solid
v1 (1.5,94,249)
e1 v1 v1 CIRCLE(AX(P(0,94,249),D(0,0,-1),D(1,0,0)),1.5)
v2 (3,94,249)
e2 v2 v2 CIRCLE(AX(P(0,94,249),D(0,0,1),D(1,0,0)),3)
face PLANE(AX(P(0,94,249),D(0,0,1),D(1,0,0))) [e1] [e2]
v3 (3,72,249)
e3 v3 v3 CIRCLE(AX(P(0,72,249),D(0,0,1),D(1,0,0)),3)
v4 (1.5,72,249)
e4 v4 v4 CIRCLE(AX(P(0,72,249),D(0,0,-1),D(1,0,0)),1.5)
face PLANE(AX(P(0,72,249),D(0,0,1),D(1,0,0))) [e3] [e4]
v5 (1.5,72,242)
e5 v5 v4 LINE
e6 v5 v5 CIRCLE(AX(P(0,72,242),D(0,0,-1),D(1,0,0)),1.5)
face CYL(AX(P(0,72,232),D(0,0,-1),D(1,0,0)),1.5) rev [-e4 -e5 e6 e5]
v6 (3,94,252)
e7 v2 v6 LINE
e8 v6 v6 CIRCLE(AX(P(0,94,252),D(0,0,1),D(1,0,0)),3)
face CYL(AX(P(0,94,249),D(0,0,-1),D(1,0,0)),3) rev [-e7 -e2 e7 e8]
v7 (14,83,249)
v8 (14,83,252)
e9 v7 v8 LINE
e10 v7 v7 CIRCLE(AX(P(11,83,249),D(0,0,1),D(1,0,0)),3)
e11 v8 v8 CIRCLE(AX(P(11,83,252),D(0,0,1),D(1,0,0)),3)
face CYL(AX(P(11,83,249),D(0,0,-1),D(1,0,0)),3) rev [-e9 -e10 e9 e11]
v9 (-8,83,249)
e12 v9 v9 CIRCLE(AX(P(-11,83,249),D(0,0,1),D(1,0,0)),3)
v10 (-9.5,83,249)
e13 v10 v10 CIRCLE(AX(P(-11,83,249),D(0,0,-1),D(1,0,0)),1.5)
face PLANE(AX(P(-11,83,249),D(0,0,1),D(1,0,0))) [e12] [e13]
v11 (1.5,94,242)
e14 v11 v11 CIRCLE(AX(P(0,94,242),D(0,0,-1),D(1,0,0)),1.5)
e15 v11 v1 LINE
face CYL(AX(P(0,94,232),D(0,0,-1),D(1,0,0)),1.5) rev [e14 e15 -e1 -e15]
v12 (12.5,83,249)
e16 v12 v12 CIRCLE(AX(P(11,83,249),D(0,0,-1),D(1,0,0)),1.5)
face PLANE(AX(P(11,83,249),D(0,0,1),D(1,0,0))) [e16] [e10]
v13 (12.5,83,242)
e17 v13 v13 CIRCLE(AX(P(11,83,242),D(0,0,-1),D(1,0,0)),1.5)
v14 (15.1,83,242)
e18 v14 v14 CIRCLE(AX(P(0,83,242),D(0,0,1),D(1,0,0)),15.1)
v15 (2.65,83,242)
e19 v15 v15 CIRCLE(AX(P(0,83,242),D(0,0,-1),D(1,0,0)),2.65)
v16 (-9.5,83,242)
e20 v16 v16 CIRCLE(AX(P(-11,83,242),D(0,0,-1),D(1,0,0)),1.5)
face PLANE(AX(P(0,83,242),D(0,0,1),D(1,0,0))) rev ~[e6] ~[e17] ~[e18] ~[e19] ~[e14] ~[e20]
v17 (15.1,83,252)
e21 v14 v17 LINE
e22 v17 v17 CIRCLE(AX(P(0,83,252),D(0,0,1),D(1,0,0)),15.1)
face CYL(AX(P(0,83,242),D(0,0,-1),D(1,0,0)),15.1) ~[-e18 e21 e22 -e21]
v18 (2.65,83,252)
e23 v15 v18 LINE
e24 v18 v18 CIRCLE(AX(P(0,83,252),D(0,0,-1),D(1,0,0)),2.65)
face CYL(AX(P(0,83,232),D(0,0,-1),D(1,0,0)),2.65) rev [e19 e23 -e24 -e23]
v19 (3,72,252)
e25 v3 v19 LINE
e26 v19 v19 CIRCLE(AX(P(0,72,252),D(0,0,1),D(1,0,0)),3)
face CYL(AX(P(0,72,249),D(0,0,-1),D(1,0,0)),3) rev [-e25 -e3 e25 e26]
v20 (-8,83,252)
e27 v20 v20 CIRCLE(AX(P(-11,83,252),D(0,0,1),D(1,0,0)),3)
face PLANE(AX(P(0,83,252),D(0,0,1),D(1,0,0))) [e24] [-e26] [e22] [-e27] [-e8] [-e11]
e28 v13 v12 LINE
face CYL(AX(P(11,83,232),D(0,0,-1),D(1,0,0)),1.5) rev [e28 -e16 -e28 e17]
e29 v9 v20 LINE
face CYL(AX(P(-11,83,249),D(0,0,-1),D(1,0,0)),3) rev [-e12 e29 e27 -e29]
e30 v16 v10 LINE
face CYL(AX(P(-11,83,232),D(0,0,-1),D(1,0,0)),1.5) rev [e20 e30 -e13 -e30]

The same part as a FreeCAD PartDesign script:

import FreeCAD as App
import Part
import Sketcher
Q = App.Units.Quantity

doc = App.newDocument("Part")
body = doc.addObject("PartDesign::Body", "Body")

# Sketch on XY plane
sketch1 = body.newObject("Sketcher::SketchObject", "Sketch")
sketch1.AttachmentSupport = (doc.getObject("XY_Plane"), [""])
sketch1.MapMode = "FlatFace"
sketch1.AttachmentOffset = App.Placement(App.Vector(0, 0, 232), App.Rotation())
sketch1.addGeometry(Part.Circle(App.Vector(0, 83, 0), App.Vector(0, 0, 1), 2.6), False)
sketch1.addConstraint(Sketcher.Constraint("PointOnObject", 0, 3, -2))
sketch1.addConstraint(Sketcher.Constraint("Diameter", 0, Q("5.3 mm")))
sketch1.addConstraint(Sketcher.Constraint("DistanceY", -1, 1, 0, 3, Q("83 mm")))
pad1 = body.newObject("PartDesign::Pad", "Pad")
pad1.Profile = sketch1
pad1.Length = 30
body2 = doc.addObject("PartDesign::Body", "Body001")

# Sketch on XY plane
sketch2 = body2.newObject("Sketcher::SketchObject", "Sketch001")
sketch2.AttachmentSupport = (doc.getObject("XY_Plane001"), [""])
sketch2.MapMode = "FlatFace"
sketch2.AttachmentOffset = App.Placement(App.Vector(0, 0, 232), App.Rotation())
sketch2.addGeometry(Part.Circle(App.Vector(11, 83, 0), App.Vector(0, 0, 1), 3), False)
sketch2.addConstraint(Sketcher.Constraint("Diameter", 0, Q("6 mm")))
sketch2.addConstraint(Sketcher.Constraint("DistanceX", -1, 1, 0, 3, Q("11 mm")))
sketch2.addConstraint(Sketcher.Constraint("DistanceY", -1, 1, 0, 3, Q("83 mm")))
pad2 = body2.newObject("PartDesign::Pad", "Pad001")
pad2.Profile = sketch2
pad2.Length = 3
body3 = doc.addObject("PartDesign::Body", "Body002")

# Sketch on XY plane
sketch3 = body3.newObject("Sketcher::SketchObject", "Sketch002")
sketch3.AttachmentSupport = (doc.getObject("XY_Plane002"), [""])
sketch3.MapMode = "FlatFace"
sketch3.AttachmentOffset = App.Placement(App.Vector(0, 0, 232), App.Rotation())
sketch3.addGeometry(Part.Circle(App.Vector(0, 72, 0), App.Vector(0, 0, 1), 3), False)
sketch3.addConstraint(Sketcher.Constraint("PointOnObject", 0, 3, -2))
sketch3.addConstraint(Sketcher.Constraint("Diameter", 0, Q("6 mm")))
sketch3.addConstraint(Sketcher.Constraint("DistanceY", -1, 1, 0, 3, Q("72 mm")))
pad3 = body3.newObject("PartDesign::Pad", "Pad002")
pad3.Profile = sketch3
pad3.Length = 3
body4 = doc.addObject("PartDesign::Body", "Body003")

# Sketch on XY plane
sketch4 = body4.newObject("Sketcher::SketchObject", "Sketch003")
sketch4.AttachmentSupport = (doc.getObject("XY_Plane003"), [""])
sketch4.MapMode = "FlatFace"
sketch4.AttachmentOffset = App.Placement(App.Vector(0, 0, 232), App.Rotation())
sketch4.addGeometry(Part.Circle(App.Vector(0, 94, 0), App.Vector(0, 0, 1), 3), False)
sketch4.addConstraint(Sketcher.Constraint("PointOnObject", 0, 3, -2))
sketch4.addConstraint(Sketcher.Constraint("Diameter", 0, Q("6 mm")))
sketch4.addConstraint(Sketcher.Constraint("DistanceY", -1, 1, 0, 3, Q("94 mm")))
pad4 = body4.newObject("PartDesign::Pad", "Pad003")
pad4.Profile = sketch4
pad4.Length = 3
body5 = doc.addObject("PartDesign::Body", "Body004")
body5.AllowCompound = True

# Sketch on XY plane
sketch5 = body5.newObject("Sketcher::SketchObject", "Sketch004")
sketch5.AttachmentSupport = (doc.getObject("XY_Plane004"), [""])
sketch5.MapMode = "FlatFace"
sketch5.AttachmentOffset = App.Placement(App.Vector(0, 0, 232), App.Rotation())
sketch5.addGeometry(Part.Circle(App.Vector(-11, 83, 0), App.Vector(0, 0, 1), 3), False)
sketch5.addConstraint(Sketcher.Constraint("Diameter", 0, Q("6 mm")))
sketch5.addConstraint(Sketcher.Constraint("DistanceX", 0, 3, -1, 1, Q("11 mm")))
sketch5.addConstraint(Sketcher.Constraint("DistanceY", -1, 1, 0, 3, Q("83 mm")))
pad5 = body5.newObject("PartDesign::Pad", "Pad004")
pad5.Profile = sketch5
pad5.Length = 3
doc.recompute()

boolean = body5.newObject("PartDesign::Boolean", "Boolean")
boolean.Type = "Fuse"
boolean.addObjects([body2])
doc.recompute()

boolean2 = body5.newObject("PartDesign::Boolean", "Boolean001")
boolean2.Type = "Fuse"
boolean2.addObjects([body3])
doc.recompute()

boolean3 = body5.newObject("PartDesign::Boolean", "Boolean002")
boolean3.Type = "Fuse"
boolean3.addObjects([body4])
body6 = doc.addObject("PartDesign::Body", "Body005")
body6.AllowCompound = True
doc.recompute()

body5.Placement = App.Placement(App.Vector(0, 0, 17), App.Rotation(App.Vector(0, 0, 1), 0))
boolean4 = body6.newObject("PartDesign::Boolean", "Boolean003")
boolean4.Type = "Fuse"
boolean4.addObjects([body5])
body7 = doc.addObject("PartDesign::Body", "Body006")

# Sketch on XY plane
sketch6 = body7.newObject("Sketcher::SketchObject", "Sketch005")
sketch6.AttachmentSupport = (doc.getObject("XY_Plane006"), [""])
sketch6.MapMode = "FlatFace"
sketch6.AttachmentOffset = App.Placement(App.Vector(0, 0, 232), App.Rotation())
sketch6.addGeometry(Part.Circle(App.Vector(11, 83, 0), App.Vector(0, 0, 1), 1.5), False)
sketch6.addConstraint(Sketcher.Constraint("Diameter", 0, Q("3 mm")))
sketch6.addConstraint(Sketcher.Constraint("DistanceX", -1, 1, 0, 3, Q("11 mm")))
sketch6.addConstraint(Sketcher.Constraint("DistanceY", -1, 1, 0, 3, Q("83 mm")))
pad6 = body7.newObject("PartDesign::Pad", "Pad005")
pad6.Profile = sketch6
pad6.Length = 30
body8 = doc.addObject("PartDesign::Body", "Body007")

# Sketch on XY plane
sketch7 = body8.newObject("Sketcher::SketchObject", "Sketch006")
sketch7.AttachmentSupport = (doc.getObject("XY_Plane007"), [""])
sketch7.MapMode = "FlatFace"
sketch7.AttachmentOffset = App.Placement(App.Vector(0, 0, 232), App.Rotation())
sketch7.addGeometry(Part.Circle(App.Vector(0, 72, 0), App.Vector(0, 0, 1), 1.5), False)
sketch7.addConstraint(Sketcher.Constraint("PointOnObject", 0, 3, -2))
sketch7.addConstraint(Sketcher.Constraint("Diameter", 0, Q("3 mm")))
sketch7.addConstraint(Sketcher.Constraint("DistanceY", -1, 1, 0, 3, Q("72 mm")))
pad7 = body8.newObject("PartDesign::Pad", "Pad006")
pad7.Profile = sketch7
pad7.Length = 30
body9 = doc.addObject("PartDesign::Body", "Body008")

# Sketch on XY plane
sketch8 = body9.newObject("Sketcher::SketchObject", "Sketch007")
sketch8.AttachmentSupport = (doc.getObject("XY_Plane008"), [""])
sketch8.MapMode = "FlatFace"
sketch8.AttachmentOffset = App.Placement(App.Vector(0, 0, 232), App.Rotation())
sketch8.addGeometry(Part.Circle(App.Vector(0, 94, 0), App.Vector(0, 0, 1), 1.5), False)
sketch8.addConstraint(Sketcher.Constraint("PointOnObject", 0, 3, -2))
sketch8.addConstraint(Sketcher.Constraint("Diameter", 0, Q("3 mm")))
sketch8.addConstraint(Sketcher.Constraint("DistanceY", -1, 1, 0, 3, Q("94 mm")))
pad8 = body9.newObject("PartDesign::Pad", "Pad007")
pad8.Profile = sketch8
pad8.Length = 30
body10 = doc.addObject("PartDesign::Body", "Body009")
body10.AllowCompound = True

# Sketch on XY plane
sketch9 = body10.newObject("Sketcher::SketchObject", "Sketch008")
sketch9.AttachmentSupport = (doc.getObject("XY_Plane009"), [""])
sketch9.MapMode = "FlatFace"
sketch9.AttachmentOffset = App.Placement(App.Vector(0, 0, 232), App.Rotation())
sketch9.addGeometry(Part.Circle(App.Vector(-11, 83, 0), App.Vector(0, 0, 1), 1.5), False)
sketch9.addConstraint(Sketcher.Constraint("Diameter", 0, Q("3 mm")))
sketch9.addConstraint(Sketcher.Constraint("DistanceX", 0, 3, -1, 1, Q("11 mm")))
sketch9.addConstraint(Sketcher.Constraint("DistanceY", -1, 1, 0, 3, Q("83 mm")))
pad9 = body10.newObject("PartDesign::Pad", "Pad008")
pad9.Profile = sketch9
pad9.Length = 30
doc.recompute()

boolean5 = body10.newObject("PartDesign::Boolean", "Boolean004")
boolean5.Type = "Fuse"
boolean5.addObjects([body7])
doc.recompute()

boolean6 = body10.newObject("PartDesign::Boolean", "Boolean005")
boolean6.Type = "Fuse"
boolean6.addObjects([body8])
doc.recompute()

boolean7 = body10.newObject("PartDesign::Boolean", "Boolean006")
boolean7.Type = "Fuse"
boolean7.addObjects([body9])
body11 = doc.addObject("PartDesign::Body", "Body010")

# Sketch on XY plane
sketch10 = body11.newObject("Sketcher::SketchObject", "Sketch009")
sketch10.AttachmentSupport = (doc.getObject("XY_Plane010"), [""])
sketch10.MapMode = "FlatFace"
sketch10.AttachmentOffset = App.Placement(App.Vector(0, 0, 242), App.Rotation())
sketch10.addGeometry(Part.Circle(App.Vector(0, 83, 0), App.Vector(0, 0, 1), 15), False)
sketch10.addConstraint(Sketcher.Constraint("PointOnObject", 0, 3, -2))
sketch10.addConstraint(Sketcher.Constraint("Diameter", 0, Q("30.2 mm")))
sketch10.addConstraint(Sketcher.Constraint("DistanceY", -1, 1, 0, 3, Q("83 mm")))
pad10 = body11.newObject("PartDesign::Pad", "Pad009")
pad10.Profile = sketch10
pad10.Length = 10
doc.recompute()

boolean8 = body11.newObject("PartDesign::Boolean", "Boolean007")
boolean8.Type = "Cut"
boolean8.addObjects([body10])
doc.recompute()

boolean9 = body11.newObject("PartDesign::Boolean", "Boolean008")
boolean9.Type = "Cut"
boolean9.addObjects([body6])
doc.recompute()

boolean10 = body11.newObject("PartDesign::Boolean", "Boolean009")
boolean10.Type = "Cut"
boolean10.addObjects([body])

doc.recompute()
